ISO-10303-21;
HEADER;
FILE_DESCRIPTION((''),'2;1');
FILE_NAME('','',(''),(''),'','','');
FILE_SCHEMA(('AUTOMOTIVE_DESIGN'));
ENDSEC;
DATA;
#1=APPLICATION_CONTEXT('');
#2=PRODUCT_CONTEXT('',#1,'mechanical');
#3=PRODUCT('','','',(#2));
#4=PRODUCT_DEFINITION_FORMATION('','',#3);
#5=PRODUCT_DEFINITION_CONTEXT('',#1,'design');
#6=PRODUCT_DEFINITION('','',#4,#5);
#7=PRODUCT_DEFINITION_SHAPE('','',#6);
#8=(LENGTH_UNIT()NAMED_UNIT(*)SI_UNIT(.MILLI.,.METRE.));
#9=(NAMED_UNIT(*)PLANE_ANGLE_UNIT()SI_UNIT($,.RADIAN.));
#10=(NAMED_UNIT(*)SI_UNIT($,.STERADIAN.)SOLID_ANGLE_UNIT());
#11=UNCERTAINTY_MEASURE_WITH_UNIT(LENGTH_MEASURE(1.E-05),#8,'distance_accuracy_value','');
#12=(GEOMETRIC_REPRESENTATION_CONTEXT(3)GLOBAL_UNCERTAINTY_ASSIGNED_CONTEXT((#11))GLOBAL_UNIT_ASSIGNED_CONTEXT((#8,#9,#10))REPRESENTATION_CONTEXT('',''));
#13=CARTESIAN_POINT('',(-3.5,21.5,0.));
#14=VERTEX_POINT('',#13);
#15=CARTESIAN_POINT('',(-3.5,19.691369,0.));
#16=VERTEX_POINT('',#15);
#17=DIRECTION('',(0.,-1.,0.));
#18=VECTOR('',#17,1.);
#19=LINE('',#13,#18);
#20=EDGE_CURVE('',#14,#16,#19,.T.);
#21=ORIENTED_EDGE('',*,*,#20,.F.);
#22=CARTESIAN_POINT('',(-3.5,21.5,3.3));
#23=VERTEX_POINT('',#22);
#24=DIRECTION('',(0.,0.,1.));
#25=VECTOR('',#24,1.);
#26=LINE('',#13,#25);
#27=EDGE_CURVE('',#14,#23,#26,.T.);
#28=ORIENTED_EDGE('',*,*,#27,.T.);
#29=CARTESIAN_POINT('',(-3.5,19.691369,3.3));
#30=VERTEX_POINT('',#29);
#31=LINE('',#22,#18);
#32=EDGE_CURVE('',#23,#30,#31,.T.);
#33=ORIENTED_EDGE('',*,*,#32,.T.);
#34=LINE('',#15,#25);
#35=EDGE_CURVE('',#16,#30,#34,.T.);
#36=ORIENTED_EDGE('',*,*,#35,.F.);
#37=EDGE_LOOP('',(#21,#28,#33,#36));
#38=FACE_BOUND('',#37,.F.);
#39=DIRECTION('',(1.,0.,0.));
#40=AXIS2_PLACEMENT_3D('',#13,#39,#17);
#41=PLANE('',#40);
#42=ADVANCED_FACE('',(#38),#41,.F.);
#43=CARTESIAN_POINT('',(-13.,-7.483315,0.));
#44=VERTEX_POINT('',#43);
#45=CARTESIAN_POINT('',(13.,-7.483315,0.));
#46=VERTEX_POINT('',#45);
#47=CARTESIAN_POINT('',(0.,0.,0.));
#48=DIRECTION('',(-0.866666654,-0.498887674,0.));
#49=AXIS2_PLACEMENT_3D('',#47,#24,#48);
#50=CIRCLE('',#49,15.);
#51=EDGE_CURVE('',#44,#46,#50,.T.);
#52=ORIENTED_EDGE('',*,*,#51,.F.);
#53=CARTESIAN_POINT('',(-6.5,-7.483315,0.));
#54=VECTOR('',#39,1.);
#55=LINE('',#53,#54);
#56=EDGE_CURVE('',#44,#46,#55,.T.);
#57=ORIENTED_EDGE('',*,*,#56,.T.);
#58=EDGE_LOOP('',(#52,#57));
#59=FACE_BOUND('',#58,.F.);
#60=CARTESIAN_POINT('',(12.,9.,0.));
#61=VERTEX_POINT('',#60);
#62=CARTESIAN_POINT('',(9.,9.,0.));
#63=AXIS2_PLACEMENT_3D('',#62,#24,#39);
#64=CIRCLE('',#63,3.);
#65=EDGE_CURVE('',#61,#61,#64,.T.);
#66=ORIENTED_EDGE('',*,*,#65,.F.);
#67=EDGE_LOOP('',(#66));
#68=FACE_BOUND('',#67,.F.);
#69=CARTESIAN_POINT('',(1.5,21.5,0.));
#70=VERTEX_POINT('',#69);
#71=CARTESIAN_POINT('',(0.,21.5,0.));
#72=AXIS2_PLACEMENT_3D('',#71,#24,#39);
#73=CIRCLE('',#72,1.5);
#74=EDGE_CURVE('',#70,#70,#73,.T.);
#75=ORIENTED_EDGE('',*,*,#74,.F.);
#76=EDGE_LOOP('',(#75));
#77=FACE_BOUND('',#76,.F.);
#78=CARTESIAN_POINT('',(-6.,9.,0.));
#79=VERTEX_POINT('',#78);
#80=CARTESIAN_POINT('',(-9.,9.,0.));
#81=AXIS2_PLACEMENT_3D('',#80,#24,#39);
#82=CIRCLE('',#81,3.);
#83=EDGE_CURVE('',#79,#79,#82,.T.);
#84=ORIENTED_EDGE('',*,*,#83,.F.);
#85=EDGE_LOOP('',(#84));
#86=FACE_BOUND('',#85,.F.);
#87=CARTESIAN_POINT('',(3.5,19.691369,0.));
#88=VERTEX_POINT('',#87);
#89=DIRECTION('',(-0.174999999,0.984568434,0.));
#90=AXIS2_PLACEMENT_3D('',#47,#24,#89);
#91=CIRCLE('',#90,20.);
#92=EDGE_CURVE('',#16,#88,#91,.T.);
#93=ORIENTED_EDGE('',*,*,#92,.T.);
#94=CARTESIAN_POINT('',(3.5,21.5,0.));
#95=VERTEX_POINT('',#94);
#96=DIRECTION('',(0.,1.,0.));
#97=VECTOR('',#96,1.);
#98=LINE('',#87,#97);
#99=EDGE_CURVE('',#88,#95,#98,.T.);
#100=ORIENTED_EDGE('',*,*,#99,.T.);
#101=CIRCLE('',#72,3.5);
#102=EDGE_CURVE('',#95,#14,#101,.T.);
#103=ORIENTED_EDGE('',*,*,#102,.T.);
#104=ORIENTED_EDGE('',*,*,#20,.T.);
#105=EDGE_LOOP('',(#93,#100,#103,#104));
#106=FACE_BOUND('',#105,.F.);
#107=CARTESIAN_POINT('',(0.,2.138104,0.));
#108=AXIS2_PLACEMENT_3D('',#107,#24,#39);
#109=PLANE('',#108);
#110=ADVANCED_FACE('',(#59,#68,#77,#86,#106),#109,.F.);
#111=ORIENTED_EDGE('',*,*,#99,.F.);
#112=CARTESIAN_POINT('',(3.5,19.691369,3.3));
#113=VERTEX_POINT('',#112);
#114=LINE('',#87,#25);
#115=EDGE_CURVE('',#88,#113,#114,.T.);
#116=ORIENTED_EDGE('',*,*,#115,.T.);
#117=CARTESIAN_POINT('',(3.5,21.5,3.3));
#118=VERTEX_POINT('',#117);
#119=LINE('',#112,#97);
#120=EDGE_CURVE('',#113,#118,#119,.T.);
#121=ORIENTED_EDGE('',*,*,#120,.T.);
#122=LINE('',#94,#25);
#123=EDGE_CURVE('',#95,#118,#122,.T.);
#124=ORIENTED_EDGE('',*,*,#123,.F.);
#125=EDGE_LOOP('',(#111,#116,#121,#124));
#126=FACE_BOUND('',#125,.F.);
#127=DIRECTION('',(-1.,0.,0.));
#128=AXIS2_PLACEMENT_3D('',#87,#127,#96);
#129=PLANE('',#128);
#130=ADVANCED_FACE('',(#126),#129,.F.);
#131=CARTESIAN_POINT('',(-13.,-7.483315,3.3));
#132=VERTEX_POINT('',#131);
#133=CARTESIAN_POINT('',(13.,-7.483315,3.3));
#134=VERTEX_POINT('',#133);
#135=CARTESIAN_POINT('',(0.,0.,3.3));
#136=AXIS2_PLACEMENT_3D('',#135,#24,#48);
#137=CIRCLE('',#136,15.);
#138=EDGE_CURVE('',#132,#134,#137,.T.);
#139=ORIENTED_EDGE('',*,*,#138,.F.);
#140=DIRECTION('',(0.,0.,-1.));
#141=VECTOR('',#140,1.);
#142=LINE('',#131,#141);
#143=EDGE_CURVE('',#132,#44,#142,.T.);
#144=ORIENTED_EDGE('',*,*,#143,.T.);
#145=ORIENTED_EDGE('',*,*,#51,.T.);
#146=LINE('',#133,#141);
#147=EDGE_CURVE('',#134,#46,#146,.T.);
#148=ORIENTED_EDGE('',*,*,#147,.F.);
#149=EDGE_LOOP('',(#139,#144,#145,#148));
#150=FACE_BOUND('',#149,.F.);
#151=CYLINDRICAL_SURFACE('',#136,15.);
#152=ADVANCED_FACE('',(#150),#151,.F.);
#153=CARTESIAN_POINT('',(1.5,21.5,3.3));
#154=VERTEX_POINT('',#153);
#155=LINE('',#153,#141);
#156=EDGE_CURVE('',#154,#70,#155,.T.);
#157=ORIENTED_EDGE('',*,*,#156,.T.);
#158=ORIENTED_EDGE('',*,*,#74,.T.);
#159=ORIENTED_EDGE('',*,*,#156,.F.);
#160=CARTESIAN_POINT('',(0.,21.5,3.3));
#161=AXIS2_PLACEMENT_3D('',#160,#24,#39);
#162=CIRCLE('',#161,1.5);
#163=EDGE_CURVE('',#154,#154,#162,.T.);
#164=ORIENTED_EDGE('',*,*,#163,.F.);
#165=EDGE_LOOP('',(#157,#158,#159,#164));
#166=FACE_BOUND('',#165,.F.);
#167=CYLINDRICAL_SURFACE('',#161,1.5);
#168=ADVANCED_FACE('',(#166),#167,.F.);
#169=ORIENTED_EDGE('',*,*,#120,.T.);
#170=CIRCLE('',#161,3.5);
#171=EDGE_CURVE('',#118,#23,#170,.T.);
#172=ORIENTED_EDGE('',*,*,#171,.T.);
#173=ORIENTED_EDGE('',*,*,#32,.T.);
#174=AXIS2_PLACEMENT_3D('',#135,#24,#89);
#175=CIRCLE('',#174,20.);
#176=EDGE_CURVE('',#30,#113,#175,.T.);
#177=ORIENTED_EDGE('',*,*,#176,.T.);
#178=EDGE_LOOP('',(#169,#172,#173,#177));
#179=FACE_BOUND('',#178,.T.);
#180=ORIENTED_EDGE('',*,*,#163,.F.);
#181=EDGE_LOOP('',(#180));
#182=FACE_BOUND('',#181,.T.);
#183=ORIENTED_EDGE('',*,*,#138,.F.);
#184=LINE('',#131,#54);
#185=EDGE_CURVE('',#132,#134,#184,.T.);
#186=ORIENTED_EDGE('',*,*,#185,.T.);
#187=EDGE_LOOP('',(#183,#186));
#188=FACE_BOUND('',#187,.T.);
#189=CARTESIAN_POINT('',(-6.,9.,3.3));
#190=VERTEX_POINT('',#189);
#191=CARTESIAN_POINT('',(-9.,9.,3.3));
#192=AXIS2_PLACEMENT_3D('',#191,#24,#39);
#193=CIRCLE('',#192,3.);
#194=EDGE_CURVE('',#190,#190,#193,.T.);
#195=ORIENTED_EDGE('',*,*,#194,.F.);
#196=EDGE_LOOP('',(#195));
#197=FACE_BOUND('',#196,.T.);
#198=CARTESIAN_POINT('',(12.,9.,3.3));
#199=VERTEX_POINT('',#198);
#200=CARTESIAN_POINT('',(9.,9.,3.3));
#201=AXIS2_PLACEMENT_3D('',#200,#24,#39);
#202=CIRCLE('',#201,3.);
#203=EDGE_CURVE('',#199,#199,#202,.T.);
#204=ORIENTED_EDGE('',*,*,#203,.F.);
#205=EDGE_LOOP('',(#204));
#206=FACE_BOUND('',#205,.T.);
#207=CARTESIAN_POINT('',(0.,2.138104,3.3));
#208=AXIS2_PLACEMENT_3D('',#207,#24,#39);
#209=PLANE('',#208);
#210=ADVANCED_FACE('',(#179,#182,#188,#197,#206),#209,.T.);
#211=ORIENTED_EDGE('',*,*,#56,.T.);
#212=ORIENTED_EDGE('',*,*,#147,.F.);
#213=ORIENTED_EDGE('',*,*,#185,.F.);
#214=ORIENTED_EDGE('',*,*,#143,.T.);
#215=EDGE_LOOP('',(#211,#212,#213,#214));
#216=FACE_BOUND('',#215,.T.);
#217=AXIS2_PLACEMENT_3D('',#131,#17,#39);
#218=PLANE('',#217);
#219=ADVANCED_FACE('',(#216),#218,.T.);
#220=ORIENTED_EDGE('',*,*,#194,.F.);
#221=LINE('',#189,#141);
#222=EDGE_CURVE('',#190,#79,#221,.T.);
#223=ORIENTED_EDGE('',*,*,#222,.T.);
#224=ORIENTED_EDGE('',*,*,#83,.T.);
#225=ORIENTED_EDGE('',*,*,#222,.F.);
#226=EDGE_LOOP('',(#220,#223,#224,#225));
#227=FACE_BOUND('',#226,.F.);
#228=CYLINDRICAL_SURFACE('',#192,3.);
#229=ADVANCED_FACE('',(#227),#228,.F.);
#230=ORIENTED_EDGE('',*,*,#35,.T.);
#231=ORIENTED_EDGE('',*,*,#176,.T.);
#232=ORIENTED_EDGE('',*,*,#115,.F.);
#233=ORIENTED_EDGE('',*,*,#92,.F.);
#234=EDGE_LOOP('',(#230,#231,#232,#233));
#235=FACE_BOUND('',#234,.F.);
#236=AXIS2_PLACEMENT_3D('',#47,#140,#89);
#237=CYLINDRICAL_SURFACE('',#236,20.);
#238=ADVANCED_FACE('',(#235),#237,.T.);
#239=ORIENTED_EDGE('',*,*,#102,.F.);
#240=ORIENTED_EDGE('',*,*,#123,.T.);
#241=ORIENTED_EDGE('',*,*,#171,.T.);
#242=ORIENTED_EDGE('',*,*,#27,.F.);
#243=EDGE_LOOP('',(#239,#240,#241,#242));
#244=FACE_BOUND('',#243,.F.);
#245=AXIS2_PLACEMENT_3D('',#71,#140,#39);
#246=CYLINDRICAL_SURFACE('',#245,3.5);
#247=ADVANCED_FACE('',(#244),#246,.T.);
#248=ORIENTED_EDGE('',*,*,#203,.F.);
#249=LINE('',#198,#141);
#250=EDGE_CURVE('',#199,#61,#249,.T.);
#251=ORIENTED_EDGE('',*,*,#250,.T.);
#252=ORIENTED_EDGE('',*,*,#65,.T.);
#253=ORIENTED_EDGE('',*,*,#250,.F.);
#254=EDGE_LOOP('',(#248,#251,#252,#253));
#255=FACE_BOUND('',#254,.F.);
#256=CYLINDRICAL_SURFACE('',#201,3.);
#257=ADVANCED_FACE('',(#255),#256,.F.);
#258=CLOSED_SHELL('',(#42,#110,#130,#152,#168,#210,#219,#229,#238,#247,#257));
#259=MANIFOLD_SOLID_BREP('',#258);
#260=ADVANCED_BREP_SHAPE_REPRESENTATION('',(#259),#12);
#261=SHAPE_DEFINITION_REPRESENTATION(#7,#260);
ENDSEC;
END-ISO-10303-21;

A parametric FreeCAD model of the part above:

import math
import FreeCAD as App
import Part
import Sketcher

doc = App.newDocument("Part")
body = doc.addObject("PartDesign::Body", "Body")

sketch1 = doc.addObject("Sketcher::SketchObject", "Sketch")
body.addObject(sketch1)
sketch1.AttachmentSupport = (doc.XY_Plane, [""])
sketch1.MapMode = "FlatFace"
sketch1.addGeometry([
    Part.ArcOfCircle(Part.Circle(App.Vector(0, 21.5, 0), App.Vector(0, 0, 1), 3.5), math.radians(0), math.radians(180)),
    Part.LineSegment(App.Vector(-3.5, 21.5, 0), App.Vector(-3.5, 19.7, 0)),
    Part.ArcOfCircle(Part.Circle(App.Vector(0, 0, 0), App.Vector(0, 0, 1), 20), math.radians(100), math.radians(440)),
    Part.LineSegment(App.Vector(3.5, 19.7, 0), App.Vector(3.5, 21.5, 0)),
], False)
sketch1.addConstraint([
    Sketcher.Constraint("Tangent", 0, 2, 1, 1),
    Sketcher.Constraint("Coincident", 1, 2, 2, 1),
    Sketcher.Constraint("Coincident", 2, 2, 3, 1),
    Sketcher.Constraint("Tangent", 3, 2, 0, 1),
    Sketcher.Constraint("Vertical", 1),
    Sketcher.Constraint("Vertical", 3),
    Sketcher.Constraint("Coincident", 2, 3, -1, 1),
    Sketcher.Constraint("PointOnObject", 0, 3, -2),
    Sketcher.Constraint("Radius", 2, 20.0),
    Sketcher.Constraint("Radius", 0, 3.5),
    Sketcher.Constraint("DistanceY", -1, 1, 0, 3, 21.5),
])
pad1 = doc.addObject("PartDesign::Pad", "Pad")
body.addObject(pad1)
pad1.Profile = sketch1
pad1.Length = 3.3

sketch2 = doc.addObject("Sketcher::SketchObject", "Sketch001")
body.addObject(sketch2)
sketch2.AttachmentSupport = (doc.XY_Plane, [""])
sketch2.MapMode = "FlatFace"
sketch2.AttachmentOffset = App.Placement(App.Vector(0, 0, 3.3), App.Rotation())
sketch2.addGeometry(Part.Circle(App.Vector(0, 21.5, 0), App.Vector(0, 0, 1), 1.5), False)
sketch2.addConstraint([
    Sketcher.Constraint("PointOnObject", 0, 3, -2),
    Sketcher.Constraint("Diameter", 0, 3.0),
    Sketcher.Constraint("DistanceY", -1, 1, 0, 3, 21.5),
])
pocket1 = doc.addObject("PartDesign::Pocket", "Pocket")
body.addObject(pocket1)
pocket1.Profile = sketch2
pocket1.Type = "ThroughAll"

sketch3 = doc.addObject("Sketcher::SketchObject", "Sketch002")
body.addObject(sketch3)
sketch3.AttachmentSupport = (doc.XY_Plane, [""])
sketch3.MapMode = "FlatFace"
sketch3.AttachmentOffset = App.Placement(App.Vector(0, 0, 3.3), App.Rotation())
sketch3.addGeometry([
    Part.Circle(App.Vector(-9, 9, 0), App.Vector(0, 0, 1), 3),
    Part.Circle(App.Vector(9, 9, 0), App.Vector(0, 0, 1), 3),
    Part.ArcOfCircle(Part.Circle(App.Vector(0, 0, 0), App.Vector(0, 0, 1), 15), math.radians(-150), math.radians(-30)),
    Part.LineSegment(App.Vector(13, -7.5, 0), App.Vector(-13, -7.5, 0)),
], False)
sketch3.addConstraint([
    Sketcher.Constraint("Coincident", 2, 1, 3, 2),
    Sketcher.Constraint("Coincident", 3, 1, 2, 2),
    Sketcher.Constraint("Horizontal", 3),
    Sketcher.Constraint("Coincident", 2, 3, -1, 1),
    Sketcher.Constraint("Equal", 0, 1),
    Sketcher.Constraint("Symmetric", 0, 3, 1, 3, -2),
    Sketcher.Constraint("Diameter", 0, 6.0),
    Sketcher.Constraint("Radius", 2, 15.0),
    Sketcher.Constraint("DistanceX", 3, 2, 3, 1, 26.0),
    Sketcher.Constraint("DistanceX", 0, 3, -1, 1, 9.0),
    Sketcher.Constraint("DistanceY", -1, 1, 0, 3, 9.0),
])
pocket2 = doc.addObject("PartDesign::Pocket", "Pocket001")
body.addObject(pocket2)
pocket2.Profile = sketch3
pocket2.Length = 5

doc.recompute()
